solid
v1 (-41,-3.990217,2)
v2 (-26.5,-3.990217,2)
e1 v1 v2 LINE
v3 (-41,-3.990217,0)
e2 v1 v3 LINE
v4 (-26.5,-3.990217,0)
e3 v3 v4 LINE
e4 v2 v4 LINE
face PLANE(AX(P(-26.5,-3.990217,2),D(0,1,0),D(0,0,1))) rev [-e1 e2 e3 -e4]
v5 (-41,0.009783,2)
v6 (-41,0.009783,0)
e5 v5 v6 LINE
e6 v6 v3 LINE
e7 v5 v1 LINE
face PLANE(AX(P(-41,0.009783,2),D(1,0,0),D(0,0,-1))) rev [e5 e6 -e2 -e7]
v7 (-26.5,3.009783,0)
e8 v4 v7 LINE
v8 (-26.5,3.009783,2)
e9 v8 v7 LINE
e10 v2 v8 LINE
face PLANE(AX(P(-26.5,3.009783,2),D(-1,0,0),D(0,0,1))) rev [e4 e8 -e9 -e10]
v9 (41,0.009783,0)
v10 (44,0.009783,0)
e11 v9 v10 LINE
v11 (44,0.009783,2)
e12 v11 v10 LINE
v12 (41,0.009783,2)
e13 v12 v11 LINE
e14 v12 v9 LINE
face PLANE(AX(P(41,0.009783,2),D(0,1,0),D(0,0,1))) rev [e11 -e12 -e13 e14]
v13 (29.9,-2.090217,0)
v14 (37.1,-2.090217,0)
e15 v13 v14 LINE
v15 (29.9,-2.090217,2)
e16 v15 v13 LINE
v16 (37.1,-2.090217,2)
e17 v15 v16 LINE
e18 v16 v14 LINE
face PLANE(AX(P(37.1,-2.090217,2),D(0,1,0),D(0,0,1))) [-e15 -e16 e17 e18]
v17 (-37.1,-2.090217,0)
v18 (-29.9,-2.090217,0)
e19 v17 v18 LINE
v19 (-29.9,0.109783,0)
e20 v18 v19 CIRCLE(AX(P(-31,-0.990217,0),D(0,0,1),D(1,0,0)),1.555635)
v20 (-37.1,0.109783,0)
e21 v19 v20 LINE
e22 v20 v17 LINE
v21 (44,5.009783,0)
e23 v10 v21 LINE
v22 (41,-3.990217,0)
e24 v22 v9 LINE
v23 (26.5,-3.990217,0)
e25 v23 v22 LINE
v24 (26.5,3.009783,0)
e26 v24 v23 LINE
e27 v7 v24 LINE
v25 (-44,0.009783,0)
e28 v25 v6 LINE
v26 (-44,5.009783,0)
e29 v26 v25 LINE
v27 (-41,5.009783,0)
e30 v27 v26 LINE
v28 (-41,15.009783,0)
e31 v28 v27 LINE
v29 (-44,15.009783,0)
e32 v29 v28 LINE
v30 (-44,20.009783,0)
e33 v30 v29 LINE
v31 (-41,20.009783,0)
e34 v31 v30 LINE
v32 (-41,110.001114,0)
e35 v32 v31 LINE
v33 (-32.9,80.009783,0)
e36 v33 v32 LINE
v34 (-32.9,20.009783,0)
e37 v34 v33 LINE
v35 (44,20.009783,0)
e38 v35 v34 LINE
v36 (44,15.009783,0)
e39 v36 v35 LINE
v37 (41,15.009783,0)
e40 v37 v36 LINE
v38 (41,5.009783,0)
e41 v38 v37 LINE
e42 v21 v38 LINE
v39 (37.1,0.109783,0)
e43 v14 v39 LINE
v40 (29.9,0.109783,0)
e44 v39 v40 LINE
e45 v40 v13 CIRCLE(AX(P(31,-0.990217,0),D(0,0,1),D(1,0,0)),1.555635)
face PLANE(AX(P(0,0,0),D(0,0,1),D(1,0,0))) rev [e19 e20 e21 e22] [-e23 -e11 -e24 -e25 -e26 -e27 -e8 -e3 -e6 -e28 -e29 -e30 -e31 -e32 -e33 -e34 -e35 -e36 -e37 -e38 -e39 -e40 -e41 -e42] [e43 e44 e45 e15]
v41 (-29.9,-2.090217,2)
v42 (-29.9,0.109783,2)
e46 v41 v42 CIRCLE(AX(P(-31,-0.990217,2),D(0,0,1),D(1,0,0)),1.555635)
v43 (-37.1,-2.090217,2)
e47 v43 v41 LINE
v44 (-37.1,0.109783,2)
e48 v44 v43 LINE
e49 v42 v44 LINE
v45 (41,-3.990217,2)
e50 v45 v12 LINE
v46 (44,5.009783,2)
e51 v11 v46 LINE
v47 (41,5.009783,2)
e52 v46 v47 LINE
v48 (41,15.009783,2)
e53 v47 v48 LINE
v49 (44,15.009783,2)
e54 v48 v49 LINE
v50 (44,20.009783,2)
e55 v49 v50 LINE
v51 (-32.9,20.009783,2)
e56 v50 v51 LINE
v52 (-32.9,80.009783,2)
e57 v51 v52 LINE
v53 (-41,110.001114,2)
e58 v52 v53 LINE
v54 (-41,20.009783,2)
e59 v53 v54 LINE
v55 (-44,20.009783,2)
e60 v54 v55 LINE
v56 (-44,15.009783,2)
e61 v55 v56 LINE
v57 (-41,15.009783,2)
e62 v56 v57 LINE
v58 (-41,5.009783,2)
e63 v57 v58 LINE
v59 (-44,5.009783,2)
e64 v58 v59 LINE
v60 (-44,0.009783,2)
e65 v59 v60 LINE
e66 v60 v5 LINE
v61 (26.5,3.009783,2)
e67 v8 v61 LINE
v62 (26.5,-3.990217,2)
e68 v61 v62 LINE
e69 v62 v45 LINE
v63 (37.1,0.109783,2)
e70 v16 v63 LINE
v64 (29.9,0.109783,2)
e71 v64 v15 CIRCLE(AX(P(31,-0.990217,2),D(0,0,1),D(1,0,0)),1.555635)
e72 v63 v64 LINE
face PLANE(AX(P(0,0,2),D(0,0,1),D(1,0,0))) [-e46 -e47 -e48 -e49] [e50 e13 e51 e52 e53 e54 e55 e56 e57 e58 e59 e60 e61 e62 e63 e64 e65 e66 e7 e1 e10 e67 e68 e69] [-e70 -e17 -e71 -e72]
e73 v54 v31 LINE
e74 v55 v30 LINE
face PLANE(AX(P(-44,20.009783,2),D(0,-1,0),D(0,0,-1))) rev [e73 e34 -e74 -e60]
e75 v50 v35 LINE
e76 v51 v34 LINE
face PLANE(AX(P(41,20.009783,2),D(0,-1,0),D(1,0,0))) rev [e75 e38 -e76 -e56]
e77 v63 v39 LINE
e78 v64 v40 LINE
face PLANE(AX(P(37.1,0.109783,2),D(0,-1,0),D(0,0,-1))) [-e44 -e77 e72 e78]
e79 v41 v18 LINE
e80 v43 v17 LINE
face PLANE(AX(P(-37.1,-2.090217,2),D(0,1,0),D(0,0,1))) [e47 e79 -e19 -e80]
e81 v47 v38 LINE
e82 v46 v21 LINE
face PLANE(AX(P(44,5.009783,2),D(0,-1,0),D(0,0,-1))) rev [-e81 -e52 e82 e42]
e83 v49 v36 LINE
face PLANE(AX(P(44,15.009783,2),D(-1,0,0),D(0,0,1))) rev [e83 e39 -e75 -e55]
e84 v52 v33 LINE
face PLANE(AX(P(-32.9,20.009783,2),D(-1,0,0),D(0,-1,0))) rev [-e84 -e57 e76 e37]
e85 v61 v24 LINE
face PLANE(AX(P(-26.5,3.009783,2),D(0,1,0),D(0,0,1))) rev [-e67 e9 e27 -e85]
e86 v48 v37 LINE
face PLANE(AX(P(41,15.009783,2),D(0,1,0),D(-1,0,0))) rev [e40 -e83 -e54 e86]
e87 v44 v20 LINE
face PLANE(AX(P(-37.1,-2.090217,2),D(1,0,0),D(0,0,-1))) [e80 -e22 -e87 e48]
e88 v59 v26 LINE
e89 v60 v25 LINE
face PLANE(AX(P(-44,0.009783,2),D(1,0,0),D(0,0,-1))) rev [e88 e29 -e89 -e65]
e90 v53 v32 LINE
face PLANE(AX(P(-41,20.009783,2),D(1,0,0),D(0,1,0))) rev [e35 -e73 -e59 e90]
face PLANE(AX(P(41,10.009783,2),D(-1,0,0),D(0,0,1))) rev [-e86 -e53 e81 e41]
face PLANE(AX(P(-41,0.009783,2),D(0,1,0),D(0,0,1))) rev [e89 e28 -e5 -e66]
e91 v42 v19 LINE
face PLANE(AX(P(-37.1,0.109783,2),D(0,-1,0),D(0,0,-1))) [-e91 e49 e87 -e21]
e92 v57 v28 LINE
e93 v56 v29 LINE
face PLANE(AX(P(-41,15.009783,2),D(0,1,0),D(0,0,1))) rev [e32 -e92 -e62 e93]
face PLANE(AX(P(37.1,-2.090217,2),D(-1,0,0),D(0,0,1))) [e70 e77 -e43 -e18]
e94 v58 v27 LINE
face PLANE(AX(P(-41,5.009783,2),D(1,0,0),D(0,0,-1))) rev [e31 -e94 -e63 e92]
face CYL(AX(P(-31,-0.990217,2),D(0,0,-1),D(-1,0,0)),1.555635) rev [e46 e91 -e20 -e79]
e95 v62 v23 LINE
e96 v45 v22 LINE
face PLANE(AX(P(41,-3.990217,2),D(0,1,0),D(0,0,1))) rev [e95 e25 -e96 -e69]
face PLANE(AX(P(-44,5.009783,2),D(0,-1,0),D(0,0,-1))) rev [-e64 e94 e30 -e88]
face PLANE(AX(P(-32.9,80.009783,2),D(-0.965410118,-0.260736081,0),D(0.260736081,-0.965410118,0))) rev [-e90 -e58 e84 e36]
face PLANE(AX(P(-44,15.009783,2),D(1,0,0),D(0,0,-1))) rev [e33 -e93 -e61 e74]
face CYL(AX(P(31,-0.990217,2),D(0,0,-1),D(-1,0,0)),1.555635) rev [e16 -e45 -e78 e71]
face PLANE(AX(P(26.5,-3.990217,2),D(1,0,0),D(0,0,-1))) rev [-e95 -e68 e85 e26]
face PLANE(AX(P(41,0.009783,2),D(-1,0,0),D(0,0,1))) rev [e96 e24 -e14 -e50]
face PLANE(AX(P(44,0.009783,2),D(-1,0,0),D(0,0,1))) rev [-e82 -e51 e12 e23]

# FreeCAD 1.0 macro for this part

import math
import FreeCAD as App
import Part
import Sketcher
from FreeCAD import Vector
Q = App.Units.Quantity


def add_polygon(sketch, points):
    """Adds a closed chain of lines whose ends are joined by coincident constraints."""
    first, n = sketch.GeometryCount, len(points)
    for a, b in zip(points, points[1:] + points[:1]):
        sketch.addGeometry(Part.LineSegment(App.Vector(*a, 0), App.Vector(*b, 0)), False)
    for i in range(n):
        sketch.addConstraint(Sketcher.Constraint("Coincident", first + i, 2, first + (i + 1) % n, 1))

doc = App.newDocument("Part")
body = doc.addObject("PartDesign::Body", "Body")

# Sketch on XY plane
sketch1 = body.newObject("Sketcher::SketchObject", "Sketch")
sketch1.AttachmentSupport = (doc.getObject("XY_Plane"), [""])
sketch1.MapMode = "FlatFace"
add_polygon(sketch1, [(-32.9, 20.009783), (-32.9, 80.009783), (-41, 110.001114), (-41, 20.009783), (-44, 20.009783), (-44, 15.009783), (-41, 15.009783), (-41, 5.009783), (-44, 5.009783), (-44, 0.009783), (-41, 0.009783), (-41, -3.990217), (-26.5, -3.990217), (-26.5, 3.009783), (26.5, 3.009783), (26.5, -3.990217), (41, -3.990217), (41, 0.009783), (44, 0.009783), (44, 5.009783), (41, 5.009783), (41, 15.009783), (44, 15.009783), (44, 20.009783)])  # lines 0-23
sketch1.addGeometry(Part.LineSegment(Vector(-29.9, -2.090217, 0), Vector(-37.1, -2.090217, 0)), False)  # 24
sketch1.addGeometry(Part.LineSegment(Vector(-37.1, -2.090217, 0), Vector(-37.1, 0.109783, 0)), False)  # 25
sketch1.addGeometry(Part.LineSegment(Vector(-37.1, 0.109783, 0), Vector(-29.9, 0.109783, 0)), False)  # 26
sketch1.addGeometry(Part.ArcOfCircle(Part.Circle(Vector(-31, -0.990217, 0), Vector(0, 0, 1), 1.555635), math.radians(-45), math.radians(45)), False)  # 27
sketch1.addGeometry(Part.LineSegment(Vector(37.1, 0.109783, 0), Vector(37.1, -2.090217, 0)), False)  # 28
sketch1.addGeometry(Part.LineSegment(Vector(37.1, -2.090217, 0), Vector(29.9, -2.090217, 0)), False)  # 29
sketch1.addGeometry(Part.ArcOfCircle(Part.Circle(Vector(31, -0.990217, 0), Vector(0, 0, 1), 1.555635), math.radians(135), math.radians(225)), False)  # 30
sketch1.addGeometry(Part.LineSegment(Vector(29.9, 0.109783, 0), Vector(37.1, 0.109783, 0)), False)  # 31
sketch1.addConstraint([
    Sketcher.Constraint("Coincident", 24, 2, 25, 1),
    Sketcher.Constraint("Coincident", 25, 2, 26, 1),
    Sketcher.Constraint("Coincident", 26, 2, 27, 2),
    Sketcher.Constraint("Coincident", 27, 1, 24, 1),
    Sketcher.Constraint("Coincident", 28, 2, 29, 1),
    Sketcher.Constraint("Coincident", 29, 2, 30, 2),
    Sketcher.Constraint("Coincident", 30, 1, 31, 1),
    Sketcher.Constraint("Coincident", 31, 2, 28, 1),
    Sketcher.Constraint("Vertical", 0),
    Sketcher.Constraint("Vertical", 2),
    Sketcher.Constraint("Horizontal", 3),
    Sketcher.Constraint("Vertical", 4),
    Sketcher.Constraint("Horizontal", 5),
    Sketcher.Constraint("Vertical", 6),
    Sketcher.Constraint("Horizontal", 7),
    Sketcher.Constraint("Vertical", 8),
    Sketcher.Constraint("Horizontal", 9),
    Sketcher.Constraint("Vertical", 10),
    Sketcher.Constraint("Horizontal", 11),
    Sketcher.Constraint("Vertical", 12),
    Sketcher.Constraint("Horizontal", 13),
    Sketcher.Constraint("Vertical", 14),
    Sketcher.Constraint("Horizontal", 15),
    Sketcher.Constraint("Vertical", 16),
    Sketcher.Constraint("Horizontal", 17),
    Sketcher.Constraint("Vertical", 18),
    Sketcher.Constraint("Horizontal", 19),
    Sketcher.Constraint("Vertical", 20),
    Sketcher.Constraint("Horizontal", 21),
    Sketcher.Constraint("Vertical", 22),
    Sketcher.Constraint("Horizontal", 23),
    Sketcher.Constraint("Horizontal", 24),
    Sketcher.Constraint("Vertical", 25),
    Sketcher.Constraint("Horizontal", 26),
    Sketcher.Constraint("Vertical", 28),
    Sketcher.Constraint("Horizontal", 29),
    Sketcher.Constraint("Horizontal", 31),
    Sketcher.Constraint("Equal", 27, 30),
    Sketcher.Constraint("Symmetric", 27, 3, 30, 3, -2),
    Sketcher.Constraint("Symmetric", 11, 2, 14, 2, -2),
    Sketcher.Constraint("Symmetric", 9, 2, 16, 2, -2),
    Sketcher.Constraint("Symmetric", 7, 2, 18, 2, -2),
    Sketcher.Constraint("Symmetric", 5, 2, 20, 2, -2),
    Sketcher.Constraint("Symmetric", 3, 2, 22, 2, -2),
    Sketcher.Constraint("Symmetric", 24, 2, 28, 2, -2),
    Sketcher.Constraint("Horizontal", 26, 2, 30, 1),
    Sketcher.Constraint("Vertical", 2, 2, 5, 2),
    Sketcher.Constraint("Vertical", 4, 2, 7, 2),
    Sketcher.Constraint("Vertical", 6, 2, 9, 2),
    Sketcher.Constraint("Vertical", 26, 2, 27, 1),
    Sketcher.Constraint("Equal", 4, 8),
    Sketcher.Constraint("DistanceX", 3, 2, 3, 1, Q("3 mm")),
    Sketcher.Constraint("DistanceX", 13, 1, 13, 2, Q("53 mm")),
    Sketcher.Constraint("DistanceY", 0, 1, 0, 2, Q("60 mm")),
    Sketcher.Constraint("DistanceY", 4, 2, 4, 1, Q("5 mm")),
    Sketcher.Constraint("DistanceY", 6, 2, 6, 1, Q("10 mm")),
    Sketcher.Constraint("DistanceY", 10, 2, 10, 1, Q("4 mm")),
    Sketcher.Constraint("DistanceY", 12, 1, 12, 2, Q("7 mm")),
    Sketcher.Constraint("DistanceX", 11, 1, 11, 2, Q("14.5 mm")),
    Sketcher.Constraint("DistanceX", 23, 2, 23, 1, Q("76.9 mm")),
    Sketcher.Constraint("DistanceX", 24, 2, 24, 1, Q("7.2 mm")),
    Sketcher.Constraint("DistanceY", 25, 1, 25, 2, Q("2.2 mm")),
    Sketcher.Constraint("DistanceX", 27, 3, -1, 1, Q("31 mm")),
    Sketcher.Constraint("DistanceY", 27, 3, 0, 2, Q("81 mm")),
    Sketcher.Constraint("DistanceX", 24, 2, -1, 1, Q("37.1 mm")),
    Sketcher.Constraint("DistanceY", 2, 2, 2, 1, Q("89.99133 mm")),
    Sketcher.Constraint("DistanceY", 27, 3, -1, 1, Q("0.990217 mm")),
])
pad1 = body.newObject("PartDesign::Pad", "Pad")
pad1.Profile = sketch1
pad1.Length = 2

doc.recompute()
